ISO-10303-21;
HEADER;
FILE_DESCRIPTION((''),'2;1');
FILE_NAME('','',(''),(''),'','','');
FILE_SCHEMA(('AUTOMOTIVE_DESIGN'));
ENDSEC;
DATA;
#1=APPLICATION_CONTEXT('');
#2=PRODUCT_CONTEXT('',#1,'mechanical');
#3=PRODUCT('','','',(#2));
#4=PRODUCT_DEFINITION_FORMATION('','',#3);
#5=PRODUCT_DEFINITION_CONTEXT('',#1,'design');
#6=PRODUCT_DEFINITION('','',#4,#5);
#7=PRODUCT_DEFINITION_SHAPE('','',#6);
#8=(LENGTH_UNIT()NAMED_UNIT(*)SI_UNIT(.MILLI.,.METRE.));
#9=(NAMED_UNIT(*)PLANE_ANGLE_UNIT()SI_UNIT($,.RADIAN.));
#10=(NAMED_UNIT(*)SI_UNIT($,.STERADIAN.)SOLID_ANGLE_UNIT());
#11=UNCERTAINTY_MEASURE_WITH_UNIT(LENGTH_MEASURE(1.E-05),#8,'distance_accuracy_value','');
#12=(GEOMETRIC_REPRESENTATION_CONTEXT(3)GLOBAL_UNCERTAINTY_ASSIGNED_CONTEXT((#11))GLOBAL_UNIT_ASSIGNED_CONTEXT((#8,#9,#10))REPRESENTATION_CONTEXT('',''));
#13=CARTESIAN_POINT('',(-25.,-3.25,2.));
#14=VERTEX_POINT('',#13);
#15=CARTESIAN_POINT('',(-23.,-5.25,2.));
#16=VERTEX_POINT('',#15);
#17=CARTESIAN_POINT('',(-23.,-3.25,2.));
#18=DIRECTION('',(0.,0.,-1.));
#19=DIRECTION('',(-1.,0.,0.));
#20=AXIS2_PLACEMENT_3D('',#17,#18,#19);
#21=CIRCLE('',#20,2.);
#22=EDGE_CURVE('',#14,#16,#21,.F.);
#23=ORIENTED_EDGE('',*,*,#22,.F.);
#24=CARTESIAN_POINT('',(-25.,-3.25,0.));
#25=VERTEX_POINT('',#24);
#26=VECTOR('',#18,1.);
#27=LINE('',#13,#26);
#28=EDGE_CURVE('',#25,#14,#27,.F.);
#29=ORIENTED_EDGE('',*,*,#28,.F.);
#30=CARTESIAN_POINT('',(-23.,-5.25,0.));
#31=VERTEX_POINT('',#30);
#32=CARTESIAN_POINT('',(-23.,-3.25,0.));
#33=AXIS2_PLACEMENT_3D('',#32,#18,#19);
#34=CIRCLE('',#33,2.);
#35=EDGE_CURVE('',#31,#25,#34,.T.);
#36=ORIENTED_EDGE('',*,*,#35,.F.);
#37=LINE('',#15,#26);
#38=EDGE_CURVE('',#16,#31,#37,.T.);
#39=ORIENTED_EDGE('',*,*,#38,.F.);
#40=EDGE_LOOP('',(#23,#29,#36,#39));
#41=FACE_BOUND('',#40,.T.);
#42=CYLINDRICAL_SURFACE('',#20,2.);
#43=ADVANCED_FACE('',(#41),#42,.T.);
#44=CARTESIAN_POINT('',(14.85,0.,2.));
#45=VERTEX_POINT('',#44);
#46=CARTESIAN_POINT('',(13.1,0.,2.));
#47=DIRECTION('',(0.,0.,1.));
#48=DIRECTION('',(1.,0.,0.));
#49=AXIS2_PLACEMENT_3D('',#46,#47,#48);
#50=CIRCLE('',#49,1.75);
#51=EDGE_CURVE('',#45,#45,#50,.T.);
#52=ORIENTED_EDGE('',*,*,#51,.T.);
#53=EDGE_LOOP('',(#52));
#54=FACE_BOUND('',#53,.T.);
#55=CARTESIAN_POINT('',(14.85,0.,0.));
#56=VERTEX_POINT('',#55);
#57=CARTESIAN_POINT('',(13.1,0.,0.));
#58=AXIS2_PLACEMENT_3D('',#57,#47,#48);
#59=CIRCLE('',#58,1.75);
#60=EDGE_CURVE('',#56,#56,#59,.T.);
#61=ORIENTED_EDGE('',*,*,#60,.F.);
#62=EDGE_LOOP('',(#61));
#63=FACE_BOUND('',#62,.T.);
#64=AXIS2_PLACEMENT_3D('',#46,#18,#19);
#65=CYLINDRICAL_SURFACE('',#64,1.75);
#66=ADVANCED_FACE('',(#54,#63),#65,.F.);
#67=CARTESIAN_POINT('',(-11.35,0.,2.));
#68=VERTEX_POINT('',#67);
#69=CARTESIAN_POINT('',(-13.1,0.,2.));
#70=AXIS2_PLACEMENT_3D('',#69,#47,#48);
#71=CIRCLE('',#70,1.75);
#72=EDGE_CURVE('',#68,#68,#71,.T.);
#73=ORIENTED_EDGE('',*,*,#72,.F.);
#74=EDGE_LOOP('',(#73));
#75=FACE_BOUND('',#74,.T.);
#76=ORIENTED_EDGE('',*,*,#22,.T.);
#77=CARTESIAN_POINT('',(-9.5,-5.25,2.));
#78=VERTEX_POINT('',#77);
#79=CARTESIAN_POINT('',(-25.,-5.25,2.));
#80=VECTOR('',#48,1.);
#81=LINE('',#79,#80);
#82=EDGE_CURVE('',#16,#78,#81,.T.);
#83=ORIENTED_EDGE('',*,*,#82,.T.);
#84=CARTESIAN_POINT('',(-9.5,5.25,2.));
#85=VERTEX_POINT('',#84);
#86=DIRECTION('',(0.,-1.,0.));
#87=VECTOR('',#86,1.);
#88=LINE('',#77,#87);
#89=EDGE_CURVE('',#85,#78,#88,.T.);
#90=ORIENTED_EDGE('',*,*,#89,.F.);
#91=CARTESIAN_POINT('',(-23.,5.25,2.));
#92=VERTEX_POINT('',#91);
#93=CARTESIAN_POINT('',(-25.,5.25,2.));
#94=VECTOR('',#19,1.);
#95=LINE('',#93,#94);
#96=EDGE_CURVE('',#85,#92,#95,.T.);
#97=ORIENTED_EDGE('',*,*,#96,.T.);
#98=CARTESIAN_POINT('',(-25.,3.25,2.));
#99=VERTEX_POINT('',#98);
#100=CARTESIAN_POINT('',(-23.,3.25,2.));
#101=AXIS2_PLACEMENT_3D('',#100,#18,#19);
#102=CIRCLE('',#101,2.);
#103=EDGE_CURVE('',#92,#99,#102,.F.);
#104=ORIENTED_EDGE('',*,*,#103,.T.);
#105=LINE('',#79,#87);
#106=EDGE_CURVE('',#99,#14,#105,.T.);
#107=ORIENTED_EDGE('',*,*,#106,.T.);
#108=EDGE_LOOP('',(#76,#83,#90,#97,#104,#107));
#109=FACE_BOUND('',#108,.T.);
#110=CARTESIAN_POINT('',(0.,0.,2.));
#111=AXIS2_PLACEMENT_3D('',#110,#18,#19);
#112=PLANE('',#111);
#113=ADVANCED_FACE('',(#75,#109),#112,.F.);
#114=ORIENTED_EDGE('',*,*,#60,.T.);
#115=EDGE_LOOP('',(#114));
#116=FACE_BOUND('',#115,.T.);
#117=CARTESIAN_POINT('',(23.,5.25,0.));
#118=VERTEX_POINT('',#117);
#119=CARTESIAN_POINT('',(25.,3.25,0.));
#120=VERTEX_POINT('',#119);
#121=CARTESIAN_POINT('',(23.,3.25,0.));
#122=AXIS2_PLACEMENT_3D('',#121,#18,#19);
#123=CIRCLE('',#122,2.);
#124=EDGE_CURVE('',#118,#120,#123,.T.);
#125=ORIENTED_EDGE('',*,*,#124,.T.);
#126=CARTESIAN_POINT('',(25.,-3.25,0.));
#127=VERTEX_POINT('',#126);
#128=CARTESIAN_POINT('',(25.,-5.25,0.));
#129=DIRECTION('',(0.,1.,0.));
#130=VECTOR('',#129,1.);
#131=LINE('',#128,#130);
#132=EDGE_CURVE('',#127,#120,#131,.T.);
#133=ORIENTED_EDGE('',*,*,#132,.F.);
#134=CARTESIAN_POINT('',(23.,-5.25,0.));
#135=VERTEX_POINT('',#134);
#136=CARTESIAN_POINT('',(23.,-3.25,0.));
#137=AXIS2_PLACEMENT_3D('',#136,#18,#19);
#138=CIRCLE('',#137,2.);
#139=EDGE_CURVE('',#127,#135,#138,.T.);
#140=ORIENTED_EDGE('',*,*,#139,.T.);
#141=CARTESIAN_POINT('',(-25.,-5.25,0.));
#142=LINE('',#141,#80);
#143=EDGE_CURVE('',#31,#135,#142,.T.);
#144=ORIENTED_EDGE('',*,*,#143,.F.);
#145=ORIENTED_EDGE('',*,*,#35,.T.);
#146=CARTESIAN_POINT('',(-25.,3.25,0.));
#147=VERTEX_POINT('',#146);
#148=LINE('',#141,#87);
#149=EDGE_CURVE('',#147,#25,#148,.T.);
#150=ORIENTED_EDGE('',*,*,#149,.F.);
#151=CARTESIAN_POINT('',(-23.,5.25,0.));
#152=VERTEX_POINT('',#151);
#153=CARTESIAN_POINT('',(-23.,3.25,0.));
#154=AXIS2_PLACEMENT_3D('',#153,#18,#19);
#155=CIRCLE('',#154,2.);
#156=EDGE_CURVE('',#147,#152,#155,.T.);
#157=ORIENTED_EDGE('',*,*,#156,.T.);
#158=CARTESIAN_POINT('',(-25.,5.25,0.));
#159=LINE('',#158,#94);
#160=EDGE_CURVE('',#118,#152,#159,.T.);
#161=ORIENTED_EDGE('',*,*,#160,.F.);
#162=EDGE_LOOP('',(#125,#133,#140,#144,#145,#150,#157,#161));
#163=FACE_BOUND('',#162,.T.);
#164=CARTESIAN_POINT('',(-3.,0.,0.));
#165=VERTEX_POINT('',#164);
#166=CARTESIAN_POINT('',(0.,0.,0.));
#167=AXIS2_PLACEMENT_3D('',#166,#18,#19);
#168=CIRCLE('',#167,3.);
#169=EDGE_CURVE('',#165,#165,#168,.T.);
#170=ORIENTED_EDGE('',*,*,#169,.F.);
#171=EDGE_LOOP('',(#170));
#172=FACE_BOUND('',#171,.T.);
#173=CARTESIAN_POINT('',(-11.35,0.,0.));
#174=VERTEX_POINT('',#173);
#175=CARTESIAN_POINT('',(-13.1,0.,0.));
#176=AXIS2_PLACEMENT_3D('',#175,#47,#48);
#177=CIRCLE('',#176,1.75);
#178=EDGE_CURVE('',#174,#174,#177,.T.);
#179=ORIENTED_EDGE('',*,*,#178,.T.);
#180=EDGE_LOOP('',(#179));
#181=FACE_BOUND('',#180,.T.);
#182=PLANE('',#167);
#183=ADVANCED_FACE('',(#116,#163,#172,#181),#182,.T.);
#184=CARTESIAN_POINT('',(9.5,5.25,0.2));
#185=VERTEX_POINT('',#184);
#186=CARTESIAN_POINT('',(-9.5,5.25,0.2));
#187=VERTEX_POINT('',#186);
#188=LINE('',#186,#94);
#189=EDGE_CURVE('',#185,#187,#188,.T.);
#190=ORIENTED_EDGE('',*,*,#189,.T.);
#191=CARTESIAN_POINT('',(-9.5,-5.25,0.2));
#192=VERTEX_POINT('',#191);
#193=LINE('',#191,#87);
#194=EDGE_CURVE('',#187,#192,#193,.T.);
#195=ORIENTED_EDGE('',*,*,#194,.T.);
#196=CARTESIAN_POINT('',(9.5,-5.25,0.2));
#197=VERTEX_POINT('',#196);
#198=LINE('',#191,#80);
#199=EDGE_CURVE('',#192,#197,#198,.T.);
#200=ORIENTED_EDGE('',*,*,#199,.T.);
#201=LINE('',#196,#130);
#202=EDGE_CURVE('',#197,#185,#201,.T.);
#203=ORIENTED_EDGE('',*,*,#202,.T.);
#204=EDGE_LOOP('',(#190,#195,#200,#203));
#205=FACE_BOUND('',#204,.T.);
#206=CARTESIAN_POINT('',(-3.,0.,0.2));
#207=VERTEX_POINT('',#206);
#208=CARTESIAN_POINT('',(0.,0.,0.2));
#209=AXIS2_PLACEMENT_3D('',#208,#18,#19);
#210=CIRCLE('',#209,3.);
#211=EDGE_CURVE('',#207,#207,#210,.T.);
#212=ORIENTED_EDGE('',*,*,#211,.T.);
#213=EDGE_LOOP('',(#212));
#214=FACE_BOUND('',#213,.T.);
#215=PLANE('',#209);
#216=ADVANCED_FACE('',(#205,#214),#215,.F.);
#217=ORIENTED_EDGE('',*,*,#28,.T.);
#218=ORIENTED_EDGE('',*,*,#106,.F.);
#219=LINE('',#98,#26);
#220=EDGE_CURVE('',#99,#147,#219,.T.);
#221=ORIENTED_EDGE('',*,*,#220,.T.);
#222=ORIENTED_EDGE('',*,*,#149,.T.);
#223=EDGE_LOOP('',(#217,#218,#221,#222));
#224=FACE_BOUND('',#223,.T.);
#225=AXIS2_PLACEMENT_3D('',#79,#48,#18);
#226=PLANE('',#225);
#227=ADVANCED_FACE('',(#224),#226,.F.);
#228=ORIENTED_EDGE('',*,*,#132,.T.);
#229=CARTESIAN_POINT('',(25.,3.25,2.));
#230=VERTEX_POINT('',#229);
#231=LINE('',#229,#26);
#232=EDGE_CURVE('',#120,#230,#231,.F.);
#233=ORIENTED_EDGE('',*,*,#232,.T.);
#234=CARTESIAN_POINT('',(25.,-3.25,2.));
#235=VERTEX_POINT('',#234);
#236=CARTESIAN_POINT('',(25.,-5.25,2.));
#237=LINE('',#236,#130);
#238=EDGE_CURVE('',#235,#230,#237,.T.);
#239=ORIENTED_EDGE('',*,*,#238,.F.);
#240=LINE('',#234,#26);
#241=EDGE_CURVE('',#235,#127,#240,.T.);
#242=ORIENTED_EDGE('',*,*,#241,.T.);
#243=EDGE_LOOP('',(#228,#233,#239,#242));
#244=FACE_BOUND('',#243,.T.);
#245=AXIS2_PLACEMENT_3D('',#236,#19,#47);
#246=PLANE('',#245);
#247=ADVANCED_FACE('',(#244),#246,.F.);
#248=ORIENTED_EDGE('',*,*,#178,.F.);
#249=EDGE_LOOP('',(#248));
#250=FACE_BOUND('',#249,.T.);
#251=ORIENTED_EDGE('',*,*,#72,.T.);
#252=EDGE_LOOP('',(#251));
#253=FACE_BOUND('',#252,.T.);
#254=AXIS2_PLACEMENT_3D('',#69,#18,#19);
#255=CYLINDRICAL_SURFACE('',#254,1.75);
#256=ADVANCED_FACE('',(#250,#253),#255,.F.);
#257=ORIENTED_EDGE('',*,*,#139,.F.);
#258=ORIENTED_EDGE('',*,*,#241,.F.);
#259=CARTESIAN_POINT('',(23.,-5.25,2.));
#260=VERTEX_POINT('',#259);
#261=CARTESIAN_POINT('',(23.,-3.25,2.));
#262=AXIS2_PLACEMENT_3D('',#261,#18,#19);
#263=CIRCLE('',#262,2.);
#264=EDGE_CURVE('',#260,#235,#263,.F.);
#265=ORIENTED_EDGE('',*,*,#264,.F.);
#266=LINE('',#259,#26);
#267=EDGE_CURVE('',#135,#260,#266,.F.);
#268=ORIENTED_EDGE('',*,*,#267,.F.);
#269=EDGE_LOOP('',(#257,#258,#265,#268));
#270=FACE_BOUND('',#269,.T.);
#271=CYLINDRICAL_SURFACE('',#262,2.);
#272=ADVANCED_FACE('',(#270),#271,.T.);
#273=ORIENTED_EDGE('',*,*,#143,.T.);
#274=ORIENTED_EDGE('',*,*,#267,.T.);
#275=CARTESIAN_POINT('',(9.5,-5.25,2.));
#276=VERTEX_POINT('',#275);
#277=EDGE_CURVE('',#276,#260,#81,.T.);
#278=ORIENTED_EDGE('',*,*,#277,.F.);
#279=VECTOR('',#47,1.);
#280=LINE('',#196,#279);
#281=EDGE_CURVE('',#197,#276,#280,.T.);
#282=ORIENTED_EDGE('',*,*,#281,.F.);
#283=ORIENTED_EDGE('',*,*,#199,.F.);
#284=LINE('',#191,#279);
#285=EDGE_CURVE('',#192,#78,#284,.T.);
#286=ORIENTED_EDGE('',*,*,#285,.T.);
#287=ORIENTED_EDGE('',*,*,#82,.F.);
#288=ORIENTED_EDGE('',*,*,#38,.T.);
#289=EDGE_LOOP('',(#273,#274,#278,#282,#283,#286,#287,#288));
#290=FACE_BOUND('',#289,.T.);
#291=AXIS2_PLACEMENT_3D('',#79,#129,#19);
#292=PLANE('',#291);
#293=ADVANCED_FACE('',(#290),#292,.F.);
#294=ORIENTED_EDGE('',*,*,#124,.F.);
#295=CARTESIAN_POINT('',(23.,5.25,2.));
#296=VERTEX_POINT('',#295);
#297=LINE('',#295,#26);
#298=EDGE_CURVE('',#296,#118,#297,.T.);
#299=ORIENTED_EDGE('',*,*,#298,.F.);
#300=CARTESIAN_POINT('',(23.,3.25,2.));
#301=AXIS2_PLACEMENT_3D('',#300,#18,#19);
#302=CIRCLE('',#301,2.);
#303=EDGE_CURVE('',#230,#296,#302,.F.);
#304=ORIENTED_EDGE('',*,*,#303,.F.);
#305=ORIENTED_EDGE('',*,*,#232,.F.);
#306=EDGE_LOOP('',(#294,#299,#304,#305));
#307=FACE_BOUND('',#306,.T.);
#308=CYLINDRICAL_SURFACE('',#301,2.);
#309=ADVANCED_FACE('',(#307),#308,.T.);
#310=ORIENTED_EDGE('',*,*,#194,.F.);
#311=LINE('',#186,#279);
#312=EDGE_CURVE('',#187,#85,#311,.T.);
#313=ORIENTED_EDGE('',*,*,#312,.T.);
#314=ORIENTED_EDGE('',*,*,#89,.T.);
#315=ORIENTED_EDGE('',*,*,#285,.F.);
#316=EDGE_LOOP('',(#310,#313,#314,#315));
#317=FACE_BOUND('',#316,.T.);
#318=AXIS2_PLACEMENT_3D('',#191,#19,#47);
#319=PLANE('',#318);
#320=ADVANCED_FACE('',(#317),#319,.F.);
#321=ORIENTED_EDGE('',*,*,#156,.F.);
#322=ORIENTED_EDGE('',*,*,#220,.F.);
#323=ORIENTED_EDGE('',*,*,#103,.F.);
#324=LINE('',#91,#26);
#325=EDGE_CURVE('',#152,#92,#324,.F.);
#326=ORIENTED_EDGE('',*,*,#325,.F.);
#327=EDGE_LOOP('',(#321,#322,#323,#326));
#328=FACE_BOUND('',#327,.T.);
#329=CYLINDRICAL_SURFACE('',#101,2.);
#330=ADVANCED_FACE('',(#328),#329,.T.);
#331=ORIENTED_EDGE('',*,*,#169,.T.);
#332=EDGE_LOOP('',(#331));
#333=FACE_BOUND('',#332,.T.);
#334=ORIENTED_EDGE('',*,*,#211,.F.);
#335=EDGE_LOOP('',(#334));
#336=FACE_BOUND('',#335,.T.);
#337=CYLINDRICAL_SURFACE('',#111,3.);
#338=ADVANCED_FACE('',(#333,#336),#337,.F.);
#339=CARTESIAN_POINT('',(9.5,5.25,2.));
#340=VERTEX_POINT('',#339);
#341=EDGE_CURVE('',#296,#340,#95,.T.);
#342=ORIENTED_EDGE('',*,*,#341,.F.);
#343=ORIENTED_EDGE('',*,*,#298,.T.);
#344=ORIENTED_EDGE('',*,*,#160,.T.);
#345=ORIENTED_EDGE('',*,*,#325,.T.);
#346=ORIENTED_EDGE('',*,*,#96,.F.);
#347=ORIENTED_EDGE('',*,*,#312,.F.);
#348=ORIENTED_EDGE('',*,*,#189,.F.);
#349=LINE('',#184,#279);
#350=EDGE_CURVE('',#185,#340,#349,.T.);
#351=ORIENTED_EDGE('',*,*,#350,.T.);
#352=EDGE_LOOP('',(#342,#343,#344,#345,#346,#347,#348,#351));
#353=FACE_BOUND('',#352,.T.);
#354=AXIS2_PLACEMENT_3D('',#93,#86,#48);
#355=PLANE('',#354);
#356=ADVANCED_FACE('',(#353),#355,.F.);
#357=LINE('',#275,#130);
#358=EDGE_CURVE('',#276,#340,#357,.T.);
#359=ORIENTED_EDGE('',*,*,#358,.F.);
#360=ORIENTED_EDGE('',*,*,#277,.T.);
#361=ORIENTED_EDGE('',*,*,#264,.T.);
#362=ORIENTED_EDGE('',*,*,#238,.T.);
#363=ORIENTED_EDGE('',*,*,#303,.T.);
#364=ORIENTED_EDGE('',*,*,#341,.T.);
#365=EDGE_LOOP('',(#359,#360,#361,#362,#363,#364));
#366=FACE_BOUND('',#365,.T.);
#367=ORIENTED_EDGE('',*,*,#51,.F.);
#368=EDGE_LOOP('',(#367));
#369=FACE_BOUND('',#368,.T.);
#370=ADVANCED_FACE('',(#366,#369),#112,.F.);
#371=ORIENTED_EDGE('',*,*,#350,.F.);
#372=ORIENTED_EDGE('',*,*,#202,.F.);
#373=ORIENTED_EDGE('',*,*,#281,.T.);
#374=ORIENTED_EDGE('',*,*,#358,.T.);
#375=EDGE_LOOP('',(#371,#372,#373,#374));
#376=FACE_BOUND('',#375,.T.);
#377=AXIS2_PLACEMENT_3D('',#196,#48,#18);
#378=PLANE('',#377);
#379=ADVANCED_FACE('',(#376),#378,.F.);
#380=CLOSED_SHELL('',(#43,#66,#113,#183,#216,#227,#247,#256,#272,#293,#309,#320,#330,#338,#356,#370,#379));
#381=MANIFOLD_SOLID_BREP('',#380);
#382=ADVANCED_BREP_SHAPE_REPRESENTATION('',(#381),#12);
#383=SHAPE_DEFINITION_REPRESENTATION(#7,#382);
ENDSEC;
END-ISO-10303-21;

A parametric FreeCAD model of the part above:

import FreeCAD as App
import Part
import Sketcher

V = App.Vector
Q = App.Units.Quantity


def edges_at(feature, points):
    """Names of the edges that pass closest to the given points."""
    edges = feature.Shape.Edges
    near = lambda p: min(range(len(edges)), key=lambda i: edges[i].distToShape(Part.Vertex(*p))[0])
    return sorted({f"Edge{near(p) + 1}" for p in points})


def add_polygon(sketch, points):
    """Adds a closed chain of lines whose ends are joined by coincident constraints."""
    first, n = sketch.GeometryCount, len(points)
    for a, b in zip(points, points[1:] + points[:1]):
        sketch.addGeometry(Part.LineSegment(App.Vector(*a, 0), App.Vector(*b, 0)), False)
    for i in range(n):
        sketch.addConstraint(Sketcher.Constraint("Coincident", first + i, 2, first + (i + 1) % n, 1))

doc = App.newDocument("Part")
body = doc.addObject("PartDesign::Body", "Body")

sketch1 = body.newObject("Sketcher::SketchObject", "Sketch")
sketch1.AttachmentSupport = (doc.getObject("XY_Plane"), [""])
sketch1.MapMode = "FlatFace"
add_polygon(sketch1, [(-25, 5.2), (-25, -5.2), (25, -5.2), (25, 5.2)])
sketch1.addGeometry(Part.Circle(V(-13.1, 0, 0), V(0, 0, 1), 1.8), False)
sketch1.addGeometry(Part.Circle(V(13.1, 0, 0), V(0, 0, 1), 1.8), False)
sketch1.addConstraint(Sketcher.Constraint("Vertical", 0))
sketch1.addConstraint(Sketcher.Constraint("Horizontal", 1))
sketch1.addConstraint(Sketcher.Constraint("Vertical", 2))
sketch1.addConstraint(Sketcher.Constraint("Horizontal", 3))
sketch1.addConstraint(Sketcher.Constraint("Equal", 4, 5))
sketch1.addConstraint(Sketcher.Constraint("Symmetric", 4, 3, 5, 3, -1, 1))
sketch1.addConstraint(Sketcher.Constraint("Symmetric", 0, 2, 2, 2, -1, 1))
sketch1.addConstraint(Sketcher.Constraint("PointOnObject", 4, 3, -1))
sketch1.addConstraint(Sketcher.Constraint("Diameter", 4, Q("3.5 mm")))
sketch1.addConstraint(Sketcher.Constraint("DistanceX", 1, 1, 1, 2, Q("50 mm")))
sketch1.addConstraint(Sketcher.Constraint("DistanceY", 0, 2, 0, 1, Q("10.5 mm")))
sketch1.addConstraint(Sketcher.Constraint("DistanceX", 4, 3, -1, 1, Q("13.1 mm")))
pad1 = body.newObject("PartDesign::Pad", "Pad")
pad1.Profile = sketch1
pad1.Length = 2
doc.recompute()

fillet = body.newObject("PartDesign::Fillet", "Fillet")
fillet.Base = (pad1, edges_at(pad1, [
    (25, -5.25, 1),
    (-25, -5.25, 1),
    (-25, 5.25, 1),
    (25, 5.25, 1),
]))
fillet.Radius = 2

sketch2 = body.newObject("Sketcher::SketchObject", "Sketch001")
sketch2.AttachmentSupport = (doc.getObject("XY_Plane"), [""])
sketch2.MapMode = "FlatFace"
sketch2.AttachmentOffset = App.Placement(V(0, 0, 2), App.Rotation())
add_polygon(sketch2, [(-10, 5), (-10, -5), (10, -5), (10, 5)])
sketch2.addConstraint(Sketcher.Constraint("Vertical", 0))
sketch2.addConstraint(Sketcher.Constraint("Horizontal", 1))
sketch2.addConstraint(Sketcher.Constraint("Vertical", 2))
sketch2.addConstraint(Sketcher.Constraint("Horizontal", 3))
sketch2.addConstraint(Sketcher.Constraint("Symmetric", 0, 2, 2, 2, -1, 1))
sketch2.addConstraint(Sketcher.Constraint("DistanceX", 1, 1, 1, 2, Q("19 mm")))
sketch2.addConstraint(Sketcher.Constraint("DistanceY", 0, 2, 0, 1, Q("10.5 mm")))
pocket1 = body.newObject("PartDesign::Pocket", "Pocket")
pocket1.Profile = sketch2
pocket1.Length = 1.8

sketch3 = body.newObject("Sketcher::SketchObject", "Sketch002")
sketch3.AttachmentSupport = (doc.getObject("XY_Plane"), [""])
sketch3.MapMode = "FlatFace"
sketch3.addGeometry(Part.Circle(V(0, 0, 0), V(0, 0, 1), 3), False)
sketch3.addConstraint(Sketcher.Constraint("Coincident", 0, 3, -1, 1))
sketch3.addConstraint(Sketcher.Constraint("Diameter", 0, Q("6 mm")))
pocket2 = body.newObject("PartDesign::Pocket", "Pocket001")
pocket2.Profile = sketch3
pocket2.Type = "ThroughAll"
pocket2.Reversed = True

doc.recompute()
